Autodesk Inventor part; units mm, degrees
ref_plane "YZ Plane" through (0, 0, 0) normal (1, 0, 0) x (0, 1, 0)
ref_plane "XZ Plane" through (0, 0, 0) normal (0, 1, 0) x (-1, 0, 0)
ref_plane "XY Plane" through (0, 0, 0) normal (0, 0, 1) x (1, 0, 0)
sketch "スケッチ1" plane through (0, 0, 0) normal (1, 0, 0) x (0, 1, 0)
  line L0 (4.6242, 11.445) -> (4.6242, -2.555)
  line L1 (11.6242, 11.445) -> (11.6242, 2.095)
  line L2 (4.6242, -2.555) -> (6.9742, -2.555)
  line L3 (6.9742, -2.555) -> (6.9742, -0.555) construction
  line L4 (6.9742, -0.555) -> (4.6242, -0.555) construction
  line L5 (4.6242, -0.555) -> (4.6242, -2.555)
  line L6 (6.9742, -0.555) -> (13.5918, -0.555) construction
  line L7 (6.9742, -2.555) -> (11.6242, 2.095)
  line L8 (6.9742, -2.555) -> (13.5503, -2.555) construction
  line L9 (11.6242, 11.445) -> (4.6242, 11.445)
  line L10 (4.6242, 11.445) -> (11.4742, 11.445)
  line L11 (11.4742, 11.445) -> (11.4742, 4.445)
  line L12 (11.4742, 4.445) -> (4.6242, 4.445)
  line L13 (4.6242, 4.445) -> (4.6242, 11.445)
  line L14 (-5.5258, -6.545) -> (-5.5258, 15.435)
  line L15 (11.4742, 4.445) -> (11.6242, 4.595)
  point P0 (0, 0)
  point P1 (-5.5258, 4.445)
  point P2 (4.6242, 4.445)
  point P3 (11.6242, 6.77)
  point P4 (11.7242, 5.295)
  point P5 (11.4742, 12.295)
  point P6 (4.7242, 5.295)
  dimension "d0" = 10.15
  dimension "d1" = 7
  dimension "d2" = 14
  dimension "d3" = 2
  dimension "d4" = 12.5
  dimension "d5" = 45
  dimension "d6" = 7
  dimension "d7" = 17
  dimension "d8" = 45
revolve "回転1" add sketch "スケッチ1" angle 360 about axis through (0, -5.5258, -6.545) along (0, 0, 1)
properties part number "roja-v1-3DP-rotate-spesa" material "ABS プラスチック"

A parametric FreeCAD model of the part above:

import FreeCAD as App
import Part
import Sketcher

V = App.Vector
Q = App.Units.Quantity

doc = App.newDocument("Part")
params = doc.addObject("Spreadsheet::Sheet", "Params")
for row, (alias, value) in enumerate([
    ("sketch1_width", "7 mm"),
    ("sketch1_height", "14 mm"),
    ("revolution_angle", "360 deg"),
], start=1):
    params.set(f"A{row}", alias)
    params.set(f"B{row}", "=" + value)
    params.setAlias(f"B{row}", alias)

body = doc.addObject("PartDesign::Body", "Body")

# Sketch on YZ plane
sketch1 = body.newObject("Sketcher::SketchObject", "Sketch")
sketch1.AttachmentSupport = (doc.getObject("YZ_Plane"), [""])
sketch1.MapMode = "FlatFace"
sketch1.addGeometry([
    Part.LineSegment(V(4.6, 11.4, 0), V(4.6, -2.6, 0)),  # 0
    Part.LineSegment(V(4.6, -2.6, 0), V(7, -2.6, 0)),  # 1
    Part.LineSegment(V(7, -2.6, 0), V(11.6, 2.1, 0)),  # 2
    Part.LineSegment(V(11.6, 2.1, 0), V(11.6, 11.4, 0)),  # 3
    Part.LineSegment(V(11.6, 11.4, 0), V(4.6, 11.4, 0)),  # 4
], False)
sketch1.addGeometry(Part.LineSegment(V(-5.5, -2.6, 0), V(-5.5, 11.4, 0)), True)  # axis
sketch1.addConstraint([
    Sketcher.Constraint("Coincident", 0, 2, 1, 1),
    Sketcher.Constraint("Coincident", 1, 2, 2, 1),
    Sketcher.Constraint("Coincident", 2, 2, 3, 1),
    Sketcher.Constraint("Coincident", 3, 2, 4, 1),
    Sketcher.Constraint("Coincident", 4, 2, 0, 1),
    Sketcher.Constraint("Vertical", 0),
    Sketcher.Constraint("Horizontal", 1),
    Sketcher.Constraint("Vertical", 3),
    Sketcher.Constraint("Horizontal", 4),
    Sketcher.Constraint("Vertical", 5),
    Sketcher.Constraint("Horizontal", 1, 2, 5, 1),
    Sketcher.Constraint("Horizontal", 4, 2, 5, 2),
    Sketcher.Constraint("DistanceX", 4, 2, 4, 1, Q("7 mm")),
    Sketcher.Constraint("DistanceY", 0, 2, 0, 1, Q("14 mm")),
    Sketcher.Constraint("Angle", 2, Q("45 deg")),
    Sketcher.Constraint("DistanceX", 5, 1, 1, 2, Q("12.5 mm")),
    Sketcher.Constraint("DistanceX", 5, 1, 0, 2, Q("10.15 mm")),
    Sketcher.Constraint("DistanceY", 0, 2, -1, 1, Q("2.555 mm")),
    Sketcher.Constraint("DistanceX", -1, 1, 0, 2, Q("4.6242 mm")),
])
sketch1.setExpression("Constraints[12]", "Params.sketch1_width")
sketch1.setExpression("Constraints[13]", "Params.sketch1_height")
revolution = body.newObject("PartDesign::Revolution", "Revolution")
revolution.Profile = sketch1
revolution.ReferenceAxis = (sketch1, ["Axis0"])
revolution.setExpression("Angle", "Params.revolution_angle")

doc.recompute()
